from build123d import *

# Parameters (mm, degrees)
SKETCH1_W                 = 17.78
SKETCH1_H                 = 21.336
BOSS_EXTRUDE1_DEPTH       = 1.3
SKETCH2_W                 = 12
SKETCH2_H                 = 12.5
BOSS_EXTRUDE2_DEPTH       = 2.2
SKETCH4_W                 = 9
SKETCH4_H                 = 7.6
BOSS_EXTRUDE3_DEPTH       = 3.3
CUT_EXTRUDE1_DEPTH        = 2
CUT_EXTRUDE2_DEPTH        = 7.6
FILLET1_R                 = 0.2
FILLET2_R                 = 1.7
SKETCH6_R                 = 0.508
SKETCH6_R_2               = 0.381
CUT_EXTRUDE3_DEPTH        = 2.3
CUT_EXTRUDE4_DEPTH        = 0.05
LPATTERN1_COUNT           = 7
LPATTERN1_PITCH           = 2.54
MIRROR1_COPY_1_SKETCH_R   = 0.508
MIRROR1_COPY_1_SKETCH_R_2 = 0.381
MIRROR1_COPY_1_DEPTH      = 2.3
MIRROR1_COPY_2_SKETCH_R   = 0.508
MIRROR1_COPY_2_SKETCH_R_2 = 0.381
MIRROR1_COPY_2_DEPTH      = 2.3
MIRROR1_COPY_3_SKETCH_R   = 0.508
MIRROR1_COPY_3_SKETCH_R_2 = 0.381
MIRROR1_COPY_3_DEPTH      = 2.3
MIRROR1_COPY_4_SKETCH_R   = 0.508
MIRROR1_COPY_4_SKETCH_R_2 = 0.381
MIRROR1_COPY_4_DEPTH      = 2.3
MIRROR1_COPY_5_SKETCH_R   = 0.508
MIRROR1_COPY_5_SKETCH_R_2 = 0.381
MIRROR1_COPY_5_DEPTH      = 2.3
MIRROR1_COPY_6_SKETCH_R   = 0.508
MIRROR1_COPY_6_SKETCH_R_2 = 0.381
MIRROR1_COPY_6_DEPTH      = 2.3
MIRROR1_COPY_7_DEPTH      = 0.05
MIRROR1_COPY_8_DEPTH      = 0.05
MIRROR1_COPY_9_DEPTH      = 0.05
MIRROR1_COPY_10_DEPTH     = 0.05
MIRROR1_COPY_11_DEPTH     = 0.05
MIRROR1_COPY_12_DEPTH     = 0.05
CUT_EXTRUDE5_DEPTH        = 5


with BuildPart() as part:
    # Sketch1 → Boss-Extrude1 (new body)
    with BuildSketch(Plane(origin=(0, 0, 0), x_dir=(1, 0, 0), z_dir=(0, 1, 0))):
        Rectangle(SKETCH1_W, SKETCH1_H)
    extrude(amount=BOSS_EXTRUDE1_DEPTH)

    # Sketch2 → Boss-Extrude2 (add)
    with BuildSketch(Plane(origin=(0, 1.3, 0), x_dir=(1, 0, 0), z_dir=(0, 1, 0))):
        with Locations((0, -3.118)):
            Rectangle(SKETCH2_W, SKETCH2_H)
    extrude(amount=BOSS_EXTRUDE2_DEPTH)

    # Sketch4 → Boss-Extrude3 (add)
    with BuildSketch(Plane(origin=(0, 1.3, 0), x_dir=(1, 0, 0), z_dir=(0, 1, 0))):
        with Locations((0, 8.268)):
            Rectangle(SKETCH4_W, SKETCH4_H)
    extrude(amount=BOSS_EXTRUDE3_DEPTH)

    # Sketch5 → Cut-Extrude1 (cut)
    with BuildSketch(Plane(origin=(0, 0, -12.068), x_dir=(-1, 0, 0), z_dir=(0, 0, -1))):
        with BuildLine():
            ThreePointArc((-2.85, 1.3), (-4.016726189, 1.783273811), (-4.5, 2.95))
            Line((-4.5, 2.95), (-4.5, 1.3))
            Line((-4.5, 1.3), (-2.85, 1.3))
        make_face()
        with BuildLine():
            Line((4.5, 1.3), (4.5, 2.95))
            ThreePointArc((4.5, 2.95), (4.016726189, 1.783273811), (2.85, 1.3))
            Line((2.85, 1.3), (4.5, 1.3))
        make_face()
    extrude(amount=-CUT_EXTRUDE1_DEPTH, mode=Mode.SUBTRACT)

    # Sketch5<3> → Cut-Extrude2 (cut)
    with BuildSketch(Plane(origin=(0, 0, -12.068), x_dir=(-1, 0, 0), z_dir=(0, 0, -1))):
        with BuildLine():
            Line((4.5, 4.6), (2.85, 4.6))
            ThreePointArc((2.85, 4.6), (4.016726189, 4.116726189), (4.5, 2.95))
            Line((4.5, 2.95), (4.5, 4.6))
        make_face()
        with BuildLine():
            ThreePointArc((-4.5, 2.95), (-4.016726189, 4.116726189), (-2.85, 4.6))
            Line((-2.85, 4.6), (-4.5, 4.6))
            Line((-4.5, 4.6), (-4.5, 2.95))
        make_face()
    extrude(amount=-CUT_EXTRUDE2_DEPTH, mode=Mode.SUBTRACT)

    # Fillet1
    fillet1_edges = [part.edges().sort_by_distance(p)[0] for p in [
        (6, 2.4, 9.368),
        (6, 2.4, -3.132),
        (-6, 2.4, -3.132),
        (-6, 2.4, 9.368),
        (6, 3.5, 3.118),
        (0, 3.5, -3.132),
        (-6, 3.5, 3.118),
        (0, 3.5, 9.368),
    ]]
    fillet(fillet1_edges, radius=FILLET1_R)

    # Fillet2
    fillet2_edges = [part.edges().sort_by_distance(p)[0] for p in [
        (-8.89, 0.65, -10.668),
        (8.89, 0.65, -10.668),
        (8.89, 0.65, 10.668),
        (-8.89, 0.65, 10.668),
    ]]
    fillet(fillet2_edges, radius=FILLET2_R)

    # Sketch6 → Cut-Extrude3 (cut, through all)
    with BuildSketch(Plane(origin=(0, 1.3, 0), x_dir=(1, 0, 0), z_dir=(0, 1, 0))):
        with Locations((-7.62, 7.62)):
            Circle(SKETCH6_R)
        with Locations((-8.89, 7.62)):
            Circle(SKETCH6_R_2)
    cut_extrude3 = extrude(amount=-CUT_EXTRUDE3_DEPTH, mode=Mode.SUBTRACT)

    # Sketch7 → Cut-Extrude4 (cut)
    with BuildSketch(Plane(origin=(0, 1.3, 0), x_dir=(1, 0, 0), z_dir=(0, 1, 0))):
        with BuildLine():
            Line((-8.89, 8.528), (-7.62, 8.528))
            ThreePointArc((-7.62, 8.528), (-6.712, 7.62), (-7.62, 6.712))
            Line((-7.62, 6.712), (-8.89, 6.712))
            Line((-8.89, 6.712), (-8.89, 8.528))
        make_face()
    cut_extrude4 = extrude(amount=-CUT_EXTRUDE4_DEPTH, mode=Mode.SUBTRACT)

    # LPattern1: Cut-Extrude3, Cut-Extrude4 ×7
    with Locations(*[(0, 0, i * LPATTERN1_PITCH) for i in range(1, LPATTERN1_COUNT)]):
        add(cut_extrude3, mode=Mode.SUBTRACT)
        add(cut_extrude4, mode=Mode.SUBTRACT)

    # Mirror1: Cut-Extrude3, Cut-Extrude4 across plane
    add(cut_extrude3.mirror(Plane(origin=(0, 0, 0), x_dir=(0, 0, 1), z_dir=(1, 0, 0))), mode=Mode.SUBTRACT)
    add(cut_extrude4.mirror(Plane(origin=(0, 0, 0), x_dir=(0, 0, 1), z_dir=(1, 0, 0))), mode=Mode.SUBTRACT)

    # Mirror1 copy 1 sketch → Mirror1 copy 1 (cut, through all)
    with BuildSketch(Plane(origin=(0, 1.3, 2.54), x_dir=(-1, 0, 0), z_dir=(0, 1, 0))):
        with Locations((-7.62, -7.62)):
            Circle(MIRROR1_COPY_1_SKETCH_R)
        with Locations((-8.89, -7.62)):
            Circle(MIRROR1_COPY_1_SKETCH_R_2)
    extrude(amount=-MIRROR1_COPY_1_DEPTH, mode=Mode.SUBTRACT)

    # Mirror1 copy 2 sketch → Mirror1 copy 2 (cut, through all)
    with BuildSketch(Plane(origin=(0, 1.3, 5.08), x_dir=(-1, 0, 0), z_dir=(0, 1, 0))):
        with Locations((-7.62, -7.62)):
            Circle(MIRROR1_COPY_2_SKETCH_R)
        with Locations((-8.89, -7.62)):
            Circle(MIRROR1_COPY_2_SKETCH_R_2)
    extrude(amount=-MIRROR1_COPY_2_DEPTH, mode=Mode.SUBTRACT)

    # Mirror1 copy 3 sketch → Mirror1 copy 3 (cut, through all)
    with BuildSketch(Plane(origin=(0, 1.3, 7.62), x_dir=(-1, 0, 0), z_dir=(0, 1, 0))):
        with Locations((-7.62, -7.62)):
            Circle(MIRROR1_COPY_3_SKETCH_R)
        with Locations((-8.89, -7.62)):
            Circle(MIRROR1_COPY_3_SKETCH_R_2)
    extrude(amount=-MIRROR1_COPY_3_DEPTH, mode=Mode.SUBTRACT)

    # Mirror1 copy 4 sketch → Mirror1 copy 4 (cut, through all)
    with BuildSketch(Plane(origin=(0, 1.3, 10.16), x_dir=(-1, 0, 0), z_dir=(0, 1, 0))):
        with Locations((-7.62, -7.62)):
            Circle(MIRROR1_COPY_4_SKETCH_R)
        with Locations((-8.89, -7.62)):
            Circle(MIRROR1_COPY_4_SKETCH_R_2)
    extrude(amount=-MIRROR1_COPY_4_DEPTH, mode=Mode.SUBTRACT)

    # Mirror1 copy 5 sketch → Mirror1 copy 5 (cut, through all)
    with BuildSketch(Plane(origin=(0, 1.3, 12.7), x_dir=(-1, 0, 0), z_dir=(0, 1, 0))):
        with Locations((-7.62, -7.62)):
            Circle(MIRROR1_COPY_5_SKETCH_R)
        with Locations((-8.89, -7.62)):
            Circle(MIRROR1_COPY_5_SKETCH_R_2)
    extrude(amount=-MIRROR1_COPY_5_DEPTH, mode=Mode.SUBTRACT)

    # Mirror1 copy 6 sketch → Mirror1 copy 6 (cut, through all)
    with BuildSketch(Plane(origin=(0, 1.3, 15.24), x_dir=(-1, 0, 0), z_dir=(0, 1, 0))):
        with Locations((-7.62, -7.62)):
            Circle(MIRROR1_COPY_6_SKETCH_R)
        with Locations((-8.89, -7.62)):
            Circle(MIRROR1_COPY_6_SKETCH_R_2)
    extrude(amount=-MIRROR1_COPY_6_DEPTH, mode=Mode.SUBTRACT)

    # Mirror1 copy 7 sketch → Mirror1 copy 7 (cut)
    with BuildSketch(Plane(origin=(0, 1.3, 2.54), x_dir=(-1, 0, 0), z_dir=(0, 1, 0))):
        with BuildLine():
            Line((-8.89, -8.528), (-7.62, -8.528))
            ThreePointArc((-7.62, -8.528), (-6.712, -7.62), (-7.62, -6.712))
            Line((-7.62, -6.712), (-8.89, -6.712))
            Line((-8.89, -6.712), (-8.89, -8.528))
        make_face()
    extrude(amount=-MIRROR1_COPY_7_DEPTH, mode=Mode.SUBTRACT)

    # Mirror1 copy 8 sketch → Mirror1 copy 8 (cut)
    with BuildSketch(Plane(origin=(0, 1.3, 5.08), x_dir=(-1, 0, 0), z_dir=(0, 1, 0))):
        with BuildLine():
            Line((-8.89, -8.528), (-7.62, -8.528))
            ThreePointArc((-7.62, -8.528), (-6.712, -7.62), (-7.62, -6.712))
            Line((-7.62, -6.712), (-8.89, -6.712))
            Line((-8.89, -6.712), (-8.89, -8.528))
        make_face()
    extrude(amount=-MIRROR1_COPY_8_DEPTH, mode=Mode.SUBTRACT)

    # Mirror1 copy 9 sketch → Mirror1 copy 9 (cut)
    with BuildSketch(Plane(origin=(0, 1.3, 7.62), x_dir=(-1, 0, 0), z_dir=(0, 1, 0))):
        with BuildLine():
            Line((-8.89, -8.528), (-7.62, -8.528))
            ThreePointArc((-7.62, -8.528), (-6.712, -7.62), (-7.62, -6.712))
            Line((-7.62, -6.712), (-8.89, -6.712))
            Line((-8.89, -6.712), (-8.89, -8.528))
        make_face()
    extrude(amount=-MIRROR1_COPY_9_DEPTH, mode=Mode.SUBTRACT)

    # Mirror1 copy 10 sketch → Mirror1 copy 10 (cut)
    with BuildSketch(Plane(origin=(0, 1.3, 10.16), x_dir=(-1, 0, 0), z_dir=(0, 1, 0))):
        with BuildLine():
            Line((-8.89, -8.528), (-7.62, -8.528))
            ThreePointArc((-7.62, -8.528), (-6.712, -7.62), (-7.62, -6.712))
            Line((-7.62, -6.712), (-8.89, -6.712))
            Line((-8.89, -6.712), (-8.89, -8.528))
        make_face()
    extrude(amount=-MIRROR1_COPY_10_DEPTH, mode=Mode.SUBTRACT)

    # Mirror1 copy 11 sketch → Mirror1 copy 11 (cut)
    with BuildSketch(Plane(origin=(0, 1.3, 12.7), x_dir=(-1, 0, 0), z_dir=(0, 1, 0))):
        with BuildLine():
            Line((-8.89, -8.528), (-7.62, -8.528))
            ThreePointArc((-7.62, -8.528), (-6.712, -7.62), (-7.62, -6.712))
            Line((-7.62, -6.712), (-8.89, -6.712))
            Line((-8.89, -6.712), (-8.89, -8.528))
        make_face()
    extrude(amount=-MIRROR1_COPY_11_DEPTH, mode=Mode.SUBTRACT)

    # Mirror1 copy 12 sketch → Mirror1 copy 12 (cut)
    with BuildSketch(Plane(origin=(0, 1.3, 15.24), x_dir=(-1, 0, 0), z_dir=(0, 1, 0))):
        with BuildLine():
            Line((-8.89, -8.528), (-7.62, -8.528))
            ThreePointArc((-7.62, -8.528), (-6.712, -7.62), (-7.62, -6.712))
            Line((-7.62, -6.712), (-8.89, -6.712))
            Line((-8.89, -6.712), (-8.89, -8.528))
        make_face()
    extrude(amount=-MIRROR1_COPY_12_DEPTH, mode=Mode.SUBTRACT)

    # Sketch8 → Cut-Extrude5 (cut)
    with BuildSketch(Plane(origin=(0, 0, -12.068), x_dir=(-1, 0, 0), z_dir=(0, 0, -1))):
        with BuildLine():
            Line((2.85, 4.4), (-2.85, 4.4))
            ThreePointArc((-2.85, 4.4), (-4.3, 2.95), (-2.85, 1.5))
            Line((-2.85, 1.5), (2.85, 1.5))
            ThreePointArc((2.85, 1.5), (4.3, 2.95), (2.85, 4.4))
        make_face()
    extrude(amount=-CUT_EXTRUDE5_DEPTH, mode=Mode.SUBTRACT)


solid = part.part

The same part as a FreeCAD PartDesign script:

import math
import FreeCAD as App
import Part
import Sketcher
Q = App.Units.Quantity


def edges_at(feature, points):
    """Names of the edges that pass closest to the given points."""
    edges = feature.Shape.Edges
    near = lambda p: min(range(len(edges)), key=lambda i: edges[i].distToShape(Part.Vertex(*p))[0])
    return sorted({f"Edge{near(p) + 1}" for p in points})


def add_polygon(sketch, points):
    """Adds a closed chain of lines whose ends are joined by coincident constraints."""
    first, n = sketch.GeometryCount, len(points)
    for a, b in zip(points, points[1:] + points[:1]):
        sketch.addGeometry(Part.LineSegment(App.Vector(*a, 0), App.Vector(*b, 0)), False)
    for i in range(n):
        sketch.addConstraint(Sketcher.Constraint("Coincident", first + i, 2, first + (i + 1) % n, 1))

doc = App.newDocument("Part")
body = doc.addObject("PartDesign::Body", "Body")

# Sketch on XZ plane
sketch1 = body.newObject("Sketcher::SketchObject", "Sketch")
sketch1.AttachmentSupport = (doc.getObject("XZ_Plane"), [""])
sketch1.MapMode = "FlatFace"
add_polygon(sketch1, [(-8.89, -10.668), (-8.89, 10.668), (8.89, 10.668), (8.89, -10.668)])  # lines 0-3
sketch1.addConstraint([
    Sketcher.Constraint("Vertical", 0),
    Sketcher.Constraint("Horizontal", 1),
    Sketcher.Constraint("Vertical", 2),
    Sketcher.Constraint("Horizontal", 3),
    Sketcher.Constraint("Symmetric", 0, 2, 2, 2, -1, 1),
    Sketcher.Constraint("DistanceX", 1, 1, 1, 2, Q("17.78 mm")),
    Sketcher.Constraint("DistanceY", 0, 1, 0, 2, Q("21.336 mm")),
])
pad1 = body.newObject("PartDesign::Pad", "Pad")
pad1.Profile = sketch1
pad1.Length = 1.3
pad1.Reversed = True

# Sketch on XZ plane
sketch2 = body.newObject("Sketcher::SketchObject", "Sketch001")
sketch2.AttachmentSupport = (doc.getObject("XZ_Plane"), [""])
sketch2.MapMode = "FlatFace"
sketch2.AttachmentOffset = App.Placement(App.Vector(0, 0, -1.3), App.Rotation())
add_polygon(sketch2, [(-6, -3.132), (-6, 9.368), (6, 9.368), (6, -3.132)])  # lines 0-3
sketch2.addConstraint([
    Sketcher.Constraint("Vertical", 0),
    Sketcher.Constraint("Horizontal", 1),
    Sketcher.Constraint("Vertical", 2),
    Sketcher.Constraint("Horizontal", 3),
    Sketcher.Constraint("DistanceX", 1, 1, 1, 2, Q("12 mm")),
    Sketcher.Constraint("DistanceY", 0, 1, 0, 2, Q("12.5 mm")),
    Sketcher.Constraint("DistanceX", 0, 2, -1, 1, Q("6 mm")),
    Sketcher.Constraint("DistanceY", -1, 1, 0, 2, Q("9.368 mm")),
])
pad2 = body.newObject("PartDesign::Pad", "Pad001")
pad2.Profile = sketch2
pad2.Length = 2.2
pad2.Reversed = True

# Sketch on XZ plane
sketch3 = body.newObject("Sketcher::SketchObject", "Sketch002")
sketch3.AttachmentSupport = (doc.getObject("XZ_Plane"), [""])
sketch3.MapMode = "FlatFace"
sketch3.AttachmentOffset = App.Placement(App.Vector(0, 0, -1.3), App.Rotation())
add_polygon(sketch3, [(-4.5, -12.068), (-4.5, -4.468), (4.5, -4.468), (4.5, -12.068)])  # lines 0-3
sketch3.addConstraint([
    Sketcher.Constraint("Vertical", 0),
    Sketcher.Constraint("Horizontal", 1),
    Sketcher.Constraint("Vertical", 2),
    Sketcher.Constraint("Horizontal", 3),
    Sketcher.Constraint("DistanceX", 1, 1, 1, 2, Q("9 mm")),
    Sketcher.Constraint("DistanceY", 0, 1, 0, 2, Q("7.6 mm")),
    Sketcher.Constraint("DistanceX", 0, 2, -1, 1, Q("4.5 mm")),
    Sketcher.Constraint("DistanceY", 0, 2, -1, 1, Q("4.468 mm")),
])
pad3 = body.newObject("PartDesign::Pad", "Pad002")
pad3.Profile = sketch3
pad3.Length = 3.3
pad3.Reversed = True

# Sketch on XY plane
sketch4 = body.newObject("Sketcher::SketchObject", "Sketch003")
sketch4.AttachmentSupport = (doc.getObject("XY_Plane"), [""])
sketch4.MapMode = "FlatFace"
sketch4.AttachmentOffset = App.Placement(App.Vector(0, 0, -12.068), App.Rotation())
sketch4.addGeometry([
    Part.ArcOfCircle(Part.Circle(App.Vector(2.85, 2.95, 0), App.Vector(0, 0, 1), 1.65), math.radians(-90), math.radians(0)),  # 0
    Part.LineSegment(App.Vector(4.5, 2.95, 0), App.Vector(4.5, 1.3, 0)),  # 1
    Part.LineSegment(App.Vector(4.5, 1.3, 0), App.Vector(2.85, 1.3, 0)),  # 2
    Part.LineSegment(App.Vector(-4.5, 1.3, 0), App.Vector(-4.5, 2.95, 0)),  # 3
    Part.ArcOfCircle(Part.Circle(App.Vector(-2.85, 2.95, 0), App.Vector(0, 0, 1), 1.65), math.radians(180), math.radians(270)),  # 4
    Part.LineSegment(App.Vector(-2.85, 1.3, 0), App.Vector(-4.5, 1.3, 0)),  # 5
], False)
sketch4.addConstraint([
    Sketcher.Constraint("Tangent", 0, 2, 1, 1),
    Sketcher.Constraint("Coincident", 1, 2, 2, 1),
    Sketcher.Constraint("Tangent", 2, 2, 0, 1),
    Sketcher.Constraint("Tangent", 3, 2, 4, 1),
    Sketcher.Constraint("Tangent", 4, 2, 5, 1),
    Sketcher.Constraint("Coincident", 5, 2, 3, 1),
    Sketcher.Constraint("Vertical", 1),
    Sketcher.Constraint("Horizontal", 2),
    Sketcher.Constraint("Vertical", 3),
    Sketcher.Constraint("Horizontal", 5),
    Sketcher.Constraint("Equal", 0, 4),
    Sketcher.Constraint("Symmetric", 0, 3, 4, 3, -2),
    Sketcher.Constraint("Radius", 0, Q("1.65 mm")),
    Sketcher.Constraint("DistanceX", 3, 2, 0, 2, Q("9 mm")),
    Sketcher.Constraint("DistanceY", -1, 1, 1, 2, Q("1.3 mm")),
])
pocket1 = body.newObject("PartDesign::Pocket", "Pocket")
pocket1.Profile = sketch4
pocket1.Length = 2
pocket1.Reversed = True

# Sketch on XY plane
sketch5 = body.newObject("Sketcher::SketchObject", "Sketch004")
sketch5.AttachmentSupport = (doc.getObject("XY_Plane"), [""])
sketch5.MapMode = "FlatFace"
sketch5.AttachmentOffset = App.Placement(App.Vector(0, 0, -12.068), App.Rotation())
sketch5.addGeometry([
    Part.LineSegment(App.Vector(-4.5, 4.6, 0), App.Vector(-2.85, 4.6, 0)),  # 0
    Part.ArcOfCircle(Part.Circle(App.Vector(-2.85, 2.95, 0), App.Vector(0, 0, 1), 1.65), math.radians(90), math.radians(180)),  # 1
    Part.LineSegment(App.Vector(-4.5, 2.95, 0), App.Vector(-4.5, 4.6, 0)),  # 2
    Part.ArcOfCircle(Part.Circle(App.Vector(2.85, 2.95, 0), App.Vector(0, 0, 1), 1.65), math.radians(0), math.radians(90)),  # 3
    Part.LineSegment(App.Vector(2.85, 4.6, 0), App.Vector(4.5, 4.6, 0)),  # 4
    Part.LineSegment(App.Vector(4.5, 4.6, 0), App.Vector(4.5, 2.95, 0)),  # 5
], False)
sketch5.addConstraint([
    Sketcher.Constraint("Tangent", 0, 2, 1, 1),
    Sketcher.Constraint("Tangent", 1, 2, 2, 1),
    Sketcher.Constraint("Coincident", 2, 2, 0, 1),
    Sketcher.Constraint("Tangent", 3, 2, 4, 1),
    Sketcher.Constraint("Coincident", 4, 2, 5, 1),
    Sketcher.Constraint("Tangent", 5, 2, 3, 1),
    Sketcher.Constraint("Horizontal", 0),
    Sketcher.Constraint("Vertical", 2),
    Sketcher.Constraint("Horizontal", 4),
    Sketcher.Constraint("Vertical", 5),
    Sketcher.Constraint("Equal", 1, 3),
    Sketcher.Constraint("Symmetric", 1, 3, 3, 3, -2),
    Sketcher.Constraint("Radius", 1, Q("1.65 mm")),
    Sketcher.Constraint("DistanceX", 2, 2, 4, 2, Q("9 mm")),
    Sketcher.Constraint("DistanceY", -1, 1, 0, 2, Q("4.6 mm")),
])
pocket2 = body.newObject("PartDesign::Pocket", "Pocket001")
pocket2.Profile = sketch5
pocket2.Length = 7.6
pocket2.Reversed = True
doc.recompute()

fillet = body.newObject("PartDesign::Fillet", "Fillet")
fillet.Base = (pocket2, edges_at(pocket2, [
    (6, 2.4, 9.368),
    (6, 2.4, -3.132),
    (-6, 2.4, -3.132),
    (-6, 2.4, 9.368),
    (6, 3.5, 3.118),
    (0, 3.5, -3.132),
    (-6, 3.5, 3.118),
    (0, 3.5, 9.368),
]))
fillet.Radius = 0.2
doc.recompute()

fillet2 = body.newObject("PartDesign::Fillet", "Fillet001")
fillet2.Base = (fillet, edges_at(fillet, [
    (-8.89, 0.65, -10.668),
    (8.89, 0.65, -10.668),
    (8.89, 0.65, 10.668),
    (-8.89, 0.65, 10.668),
]))
fillet2.Radius = 1.7

# Sketch on XZ plane
sketch6 = body.newObject("Sketcher::SketchObject", "Sketch005")
sketch6.AttachmentSupport = (doc.getObject("XZ_Plane"), [""])
sketch6.MapMode = "FlatFace"
sketch6.AttachmentOffset = App.Placement(App.Vector(0, 0, -1.3), App.Rotation())
sketch6.addGeometry([
    Part.Circle(App.Vector(-7.62, -7.62, 0), App.Vector(0, 0, 1), 0.508),
    Part.Circle(App.Vector(-8.89, -7.62, 0), App.Vector(0, 0, 1), 0.381),
], False)
sketch6.addConstraint([
    Sketcher.Constraint("Horizontal", 0, 3, 1, 3),
    Sketcher.Constraint("Diameter", 0, Q("1.016 mm")),
    Sketcher.Constraint("Diameter", 1, Q("0.762 mm")),
    Sketcher.Constraint("DistanceX", 0, 3, -1, 1, Q("7.62 mm")),
    Sketcher.Constraint("DistanceY", 0, 3, -1, 1, Q("7.62 mm")),
    Sketcher.Constraint("DistanceX", 1, 3, -1, 1, Q("8.89 mm")),
])
pocket3 = body.newObject("PartDesign::Pocket", "Pocket002")
pocket3.Profile = sketch6
pocket3.Type = "ThroughAll"
pocket3.Reversed = True

# Sketch on XZ plane
sketch7 = body.newObject("Sketcher::SketchObject", "Sketch006")
sketch7.AttachmentSupport = (doc.getObject("XZ_Plane"), [""])
sketch7.MapMode = "FlatFace"
sketch7.AttachmentOffset = App.Placement(App.Vector(0, 0, -1.3), App.Rotation())
sketch7.addGeometry([
    Part.LineSegment(App.Vector(-7.62, -8.528, 0), App.Vector(-8.89, -8.528, 0)),
    Part.LineSegment(App.Vector(-8.89, -8.528, 0), App.Vector(-8.89, -6.712, 0)),
    Part.LineSegment(App.Vector(-8.89, -6.712, 0), App.Vector(-7.62, -6.712, 0)),
    Part.ArcOfCircle(Part.Circle(App.Vector(-7.62, -7.62, 0), App.Vector(0, 0, 1), 0.908), math.radians(-90), math.radians(90)),
], False)
sketch7.addConstraint([
    Sketcher.Constraint("Coincident", 0, 2, 1, 1),
    Sketcher.Constraint("Coincident", 1, 2, 2, 1),
    Sketcher.Constraint("Tangent", 2, 2, 3, 2),
    Sketcher.Constraint("Tangent", 3, 1, 0, 1),
    Sketcher.Constraint("Horizontal", 0),
    Sketcher.Constraint("Vertical", 1),
    Sketcher.Constraint("Horizontal", 2),
    Sketcher.Constraint("Radius", 3, Q("0.908 mm")),
    Sketcher.Constraint("DistanceX", 0, 2, 0, 1, Q("1.27 mm")),
    Sketcher.Constraint("DistanceX", 3, 3, -1, 1, Q("7.62 mm")),
    Sketcher.Constraint("DistanceY", 3, 3, -1, 1, Q("7.62 mm")),
])
pocket4 = body.newObject("PartDesign::Pocket", "Pocket003")
pocket4.Profile = sketch7
pocket4.Length = 0.05
pocket4.Reversed = True
doc.recompute()

linearpattern = body.newObject("PartDesign::LinearPattern", "LinearPattern")
linearpattern.Originals = [pocket3, pocket4]
linearpattern.Direction = (doc.getObject("Z_Axis"), [""])
linearpattern.Mode = "offset"
linearpattern.Offset = 2.54
linearpattern.Occurrences = 7
body.Tip = linearpattern
doc.recompute()

mirrored = body.newObject("PartDesign::Mirrored", "Mirrored")
mirrored.Originals = [pocket3, pocket4]
mirrored.MirrorPlane = (doc.getObject("YZ_Plane"), [""])
body.Tip = mirrored

# Sketch on XZ plane
sketch8 = body.newObject("Sketcher::SketchObject", "Sketch007")
sketch8.AttachmentSupport = (doc.getObject("XZ_Plane"), [""])
sketch8.MapMode = "FlatFace"
sketch8.AttachmentOffset = App.Placement(App.Vector(0, 0, -1.3), App.Rotation())
sketch8.addGeometry([
    Part.Circle(App.Vector(7.62, -5.08, 0), App.Vector(0, 0, 1), 0.508),
    Part.Circle(App.Vector(8.89, -5.08, 0), App.Vector(0, 0, 1), 0.381),
], False)
sketch8.addConstraint([
    Sketcher.Constraint("Horizontal", 0, 3, 1, 3),
    Sketcher.Constraint("Diameter", 0, Q("1.016 mm")),
    Sketcher.Constraint("Diameter", 1, Q("0.762 mm")),
    Sketcher.Constraint("DistanceX", -1, 1, 0, 3, Q("7.62 mm")),
    Sketcher.Constraint("DistanceY", 0, 3, -1, 1, Q("5.08 mm")),
    Sketcher.Constraint("DistanceX", -1, 1, 1, 3, Q("8.89 mm")),
])
pocket5 = body.newObject("PartDesign::Pocket", "Pocket004")
pocket5.Profile = sketch8
pocket5.Type = "ThroughAll"
pocket5.Reversed = True

# Sketch on XZ plane
sketch9 = body.newObject("Sketcher::SketchObject", "Sketch008")
sketch9.AttachmentSupport = (doc.getObject("XZ_Plane"), [""])
sketch9.MapMode = "FlatFace"
sketch9.AttachmentOffset = App.Placement(App.Vector(0, 0, -1.3), App.Rotation())
sketch9.addGeometry([
    Part.Circle(App.Vector(7.62, -2.54, 0), App.Vector(0, 0, 1), 0.508),
    Part.Circle(App.Vector(8.89, -2.54, 0), App.Vector(0, 0, 1), 0.381),
], False)
sketch9.addConstraint([
    Sketcher.Constraint("Horizontal", 0, 3, 1, 3),
    Sketcher.Constraint("Diameter", 0, Q("1.016 mm")),
    Sketcher.Constraint("Diameter", 1, Q("0.762 mm")),
    Sketcher.Constraint("DistanceX", -1, 1, 0, 3, Q("7.62 mm")),
    Sketcher.Constraint("DistanceY", 0, 3, -1, 1, Q("2.54 mm")),
    Sketcher.Constraint("DistanceX", -1, 1, 1, 3, Q("8.89 mm")),
])
pocket6 = body.newObject("PartDesign::Pocket", "Pocket005")
pocket6.Profile = sketch9
pocket6.Type = "ThroughAll"
pocket6.Reversed = True

# Sketch on XZ plane
sketch10 = body.newObject("Sketcher::SketchObject", "Sketch009")
sketch10.AttachmentSupport = (doc.getObject("XZ_Plane"), [""])
sketch10.MapMode = "FlatFace"
sketch10.AttachmentOffset = App.Placement(App.Vector(0, 0, -1.3), App.Rotation())
sketch10.addGeometry([
    Part.Circle(App.Vector(7.62, 0, 0), App.Vector(0, 0, 1), 0.508),
    Part.Circle(App.Vector(8.89, 0, 0), App.Vector(0, 0, 1), 0.381),
], False)
sketch10.addConstraint([
    Sketcher.Constraint("PointOnObject", 0, 3, -1),
    Sketcher.Constraint("PointOnObject", 1, 3, -1),
    Sketcher.Constraint("Diameter", 0, Q("1.016 mm")),
    Sketcher.Constraint("Diameter", 1, Q("0.762 mm")),
    Sketcher.Constraint("DistanceX", -1, 1, 0, 3, Q("7.62 mm")),
    Sketcher.Constraint("DistanceX", -1, 1, 1, 3, Q("8.89 mm")),
])
pocket7 = body.newObject("PartDesign::Pocket", "Pocket006")
pocket7.Profile = sketch10
pocket7.Type = "ThroughAll"
pocket7.Reversed = True

# Sketch on XZ plane
sketch11 = body.newObject("Sketcher::SketchObject", "Sketch010")
sketch11.AttachmentSupport = (doc.getObject("XZ_Plane"), [""])
sketch11.MapMode = "FlatFace"
sketch11.AttachmentOffset = App.Placement(App.Vector(0, 0, -1.3), App.Rotation())
sketch11.addGeometry([
    Part.Circle(App.Vector(7.62, 2.54, 0), App.Vector(0, 0, 1), 0.508),
    Part.Circle(App.Vector(8.89, 2.54, 0), App.Vector(0, 0, 1), 0.381),
], False)
sketch11.addConstraint([
    Sketcher.Constraint("Horizontal", 0, 3, 1, 3),
    Sketcher.Constraint("Diameter", 0, Q("1.016 mm")),
    Sketcher.Constraint("Diameter", 1, Q("0.762 mm")),
    Sketcher.Constraint("DistanceX", -1, 1, 0, 3, Q("7.62 mm")),
    Sketcher.Constraint("DistanceY", -1, 1, 0, 3, Q("2.54 mm")),
    Sketcher.Constraint("DistanceX", -1, 1, 1, 3, Q("8.89 mm")),
])
pocket8 = body.newObject("PartDesign::Pocket", "Pocket007")
pocket8.Profile = sketch11
pocket8.Type = "ThroughAll"
pocket8.Reversed = True

# Sketch on XZ plane
sketch12 = body.newObject("Sketcher::SketchObject", "Sketch011")
sketch12.AttachmentSupport = (doc.getObject("XZ_Plane"), [""])
sketch12.MapMode = "FlatFace"
sketch12.AttachmentOffset = App.Placement(App.Vector(0, 0, -1.3), App.Rotation())
sketch12.addGeometry([
    Part.Circle(App.Vector(7.62, 5.08, 0), App.Vector(0, 0, 1), 0.508),
    Part.Circle(App.Vector(8.89, 5.08, 0), App.Vector(0, 0, 1), 0.381),
], False)
sketch12.addConstraint([
    Sketcher.Constraint("Horizontal", 0, 3, 1, 3),
    Sketcher.Constraint("Diameter", 0, Q("1.016 mm")),
    Sketcher.Constraint("Diameter", 1, Q("0.762 mm")),
    Sketcher.Constraint("DistanceX", -1, 1, 0, 3, Q("7.62 mm")),
    Sketcher.Constraint("DistanceY", -1, 1, 0, 3, Q("5.08 mm")),
    Sketcher.Constraint("DistanceX", -1, 1, 1, 3, Q("8.89 mm")),
])
pocket9 = body.newObject("PartDesign::Pocket", "Pocket008")
pocket9.Profile = sketch12
pocket9.Type = "ThroughAll"
pocket9.Reversed = True

# Sketch on XZ plane
sketch13 = body.newObject("Sketcher::SketchObject", "Sketch012")
sketch13.AttachmentSupport = (doc.getObject("XZ_Plane"), [""])
sketch13.MapMode = "FlatFace"
sketch13.AttachmentOffset = App.Placement(App.Vector(0, 0, -1.3), App.Rotation())
sketch13.addGeometry([
    Part.Circle(App.Vector(7.62, 7.62, 0), App.Vector(0, 0, 1), 0.508),
    Part.Circle(App.Vector(8.89, 7.62, 0), App.Vector(0, 0, 1), 0.381),
], False)
sketch13.addConstraint([
    Sketcher.Constraint("Horizontal", 0, 3, 1, 3),
    Sketcher.Constraint("Diameter", 0, Q("1.016 mm")),
    Sketcher.Constraint("Diameter", 1, Q("0.762 mm")),
    Sketcher.Constraint("DistanceX", -1, 1, 0, 3, Q("7.62 mm")),
    Sketcher.Constraint("DistanceY", -1, 1, 0, 3, Q("7.62 mm")),
    Sketcher.Constraint("DistanceX", -1, 1, 1, 3, Q("8.89 mm")),
])
pocket10 = body.newObject("PartDesign::Pocket", "Pocket009")
pocket10.Profile = sketch13
pocket10.Type = "ThroughAll"
pocket10.Reversed = True

# Sketch on XZ plane
sketch14 = body.newObject("Sketcher::SketchObject", "Sketch013")
sketch14.AttachmentSupport = (doc.getObject("XZ_Plane"), [""])
sketch14.MapMode = "FlatFace"
sketch14.AttachmentOffset = App.Placement(App.Vector(0, 0, -1.3), App.Rotation())
sketch14.addGeometry([
    Part.LineSegment(App.Vector(8.89, -5.988, 0), App.Vector(7.62, -5.988, 0)),
    Part.ArcOfCircle(Part.Circle(App.Vector(7.62, -5.08, 0), App.Vector(0, 0, 1), 0.908), math.radians(90), math.radians(270)),
    Part.LineSegment(App.Vector(7.62, -4.172, 0), App.Vector(8.89, -4.172, 0)),
    Part.LineSegment(App.Vector(8.89, -4.172, 0), App.Vector(8.89, -5.988, 0)),
], False)
sketch14.addConstraint([
    Sketcher.Constraint("Tangent", 0, 2, 1, 2),
    Sketcher.Constraint("Tangent", 1, 1, 2, 1),
    Sketcher.Constraint("Coincident", 2, 2, 3, 1),
    Sketcher.Constraint("Coincident", 3, 2, 0, 1),
    Sketcher.Constraint("Horizontal", 0),
    Sketcher.Constraint("Horizontal", 2),
    Sketcher.Constraint("Vertical", 3),
    Sketcher.Constraint("Radius", 1, Q("0.908 mm")),
    Sketcher.Constraint("DistanceX", 0, 2, 0, 1, Q("1.27 mm")),
    Sketcher.Constraint("DistanceX", -1, 1, 1, 3, Q("7.62 mm")),
    Sketcher.Constraint("DistanceY", 1, 3, -1, 1, Q("5.08 mm")),
])
pocket11 = body.newObject("PartDesign::Pocket", "Pocket010")
pocket11.Profile = sketch14
pocket11.Length = 0.05
pocket11.Reversed = True

# Sketch on XZ plane
sketch15 = body.newObject("Sketcher::SketchObject", "Sketch014")
sketch15.AttachmentSupport = (doc.getObject("XZ_Plane"), [""])
sketch15.MapMode = "FlatFace"
sketch15.AttachmentOffset = App.Placement(App.Vector(0, 0, -1.3), App.Rotation())
sketch15.addGeometry([
    Part.LineSegment(App.Vector(8.89, -3.448, 0), App.Vector(7.62, -3.448, 0)),
    Part.ArcOfCircle(Part.Circle(App.Vector(7.62, -2.54, 0), App.Vector(0, 0, 1), 0.908), math.radians(90), math.radians(270)),
    Part.LineSegment(App.Vector(7.62, -1.632, 0), App.Vector(8.89, -1.632, 0)),
    Part.LineSegment(App.Vector(8.89, -1.632, 0), App.Vector(8.89, -3.448, 0)),
], False)
sketch15.addConstraint([
    Sketcher.Constraint("Tangent", 0, 2, 1, 2),
    Sketcher.Constraint("Tangent", 1, 1, 2, 1),
    Sketcher.Constraint("Coincident", 2, 2, 3, 1),
    Sketcher.Constraint("Coincident", 3, 2, 0, 1),
    Sketcher.Constraint("Horizontal", 0),
    Sketcher.Constraint("Horizontal", 2),
    Sketcher.Constraint("Vertical", 3),
    Sketcher.Constraint("Radius", 1, Q("0.908 mm")),
    Sketcher.Constraint("DistanceX", 0, 2, 0, 1, Q("1.27 mm")),
    Sketcher.Constraint("DistanceX", -1, 1, 1, 3, Q("7.62 mm")),
    Sketcher.Constraint("DistanceY", 1, 3, -1, 1, Q("2.54 mm")),
])
pocket12 = body.newObject("PartDesign::Pocket", "Pocket011")
pocket12.Profile = sketch15
pocket12.Length = 0.05
pocket12.Reversed = True

# Sketch on XZ plane
sketch16 = body.newObject("Sketcher::SketchObject", "Sketch015")
sketch16.AttachmentSupport = (doc.getObject("XZ_Plane"), [""])
sketch16.MapMode = "FlatFace"
sketch16.AttachmentOffset = App.Placement(App.Vector(0, 0, -1.3), App.Rotation())
sketch16.addGeometry([
    Part.LineSegment(App.Vector(8.89, -0.908, 0), App.Vector(7.62, -0.908, 0)),
    Part.ArcOfCircle(Part.Circle(App.Vector(7.62, 0, 0), App.Vector(0, 0, 1), 0.908), math.radians(90), math.radians(270)),
    Part.LineSegment(App.Vector(7.62, 0.908, 0), App.Vector(8.89, 0.908, 0)),
    Part.LineSegment(App.Vector(8.89, 0.908, 0), App.Vector(8.89, -0.908, 0)),
], False)
sketch16.addConstraint([
    Sketcher.Constraint("Tangent", 0, 2, 1, 2),
    Sketcher.Constraint("Tangent", 1, 1, 2, 1),
    Sketcher.Constraint("Coincident", 2, 2, 3, 1),
    Sketcher.Constraint("Coincident", 3, 2, 0, 1),
    Sketcher.Constraint("Horizontal", 0),
    Sketcher.Constraint("Horizontal", 2),
    Sketcher.Constraint("Vertical", 3),
    Sketcher.Constraint("PointOnObject", 1, 3, -1),
    Sketcher.Constraint("Radius", 1, Q("0.908 mm")),
    Sketcher.Constraint("DistanceX", 0, 2, 0, 1, Q("1.27 mm")),
    Sketcher.Constraint("DistanceX", -1, 1, 1, 3, Q("7.62 mm")),
])
pocket13 = body.newObject("PartDesign::Pocket", "Pocket012")
pocket13.Profile = sketch16
pocket13.Length = 0.05
pocket13.Reversed = True

# Sketch on XZ plane
sketch17 = body.newObject("Sketcher::SketchObject", "Sketch016")
sketch17.AttachmentSupport = (doc.getObject("XZ_Plane"), [""])
sketch17.MapMode = "FlatFace"
sketch17.AttachmentOffset = App.Placement(App.Vector(0, 0, -1.3), App.Rotation())
sketch17.addGeometry([
    Part.LineSegment(App.Vector(8.89, 1.632, 0), App.Vector(7.62, 1.632, 0)),
    Part.ArcOfCircle(Part.Circle(App.Vector(7.62, 2.54, 0), App.Vector(0, 0, 1), 0.908), math.radians(90), math.radians(270)),
    Part.LineSegment(App.Vector(7.62, 3.448, 0), App.Vector(8.89, 3.448, 0)),
    Part.LineSegment(App.Vector(8.89, 3.448, 0), App.Vector(8.89, 1.632, 0)),
], False)
sketch17.addConstraint([
    Sketcher.Constraint("Tangent", 0, 2, 1, 2),
    Sketcher.Constraint("Tangent", 1, 1, 2, 1),
    Sketcher.Constraint("Coincident", 2, 2, 3, 1),
    Sketcher.Constraint("Coincident", 3, 2, 0, 1),
    Sketcher.Constraint("Horizontal", 0),
    Sketcher.Constraint("Horizontal", 2),
    Sketcher.Constraint("Vertical", 3),
    Sketcher.Constraint("Radius", 1, Q("0.908 mm")),
    Sketcher.Constraint("DistanceX", 0, 2, 0, 1, Q("1.27 mm")),
    Sketcher.Constraint("DistanceX", -1, 1, 1, 3, Q("7.62 mm")),
    Sketcher.Constraint("DistanceY", -1, 1, 1, 3, Q("2.54 mm")),
])
pocket14 = body.newObject("PartDesign::Pocket", "Pocket013")
pocket14.Profile = sketch17
pocket14.Length = 0.05
pocket14.Reversed = True

# Sketch on XZ plane
sketch18 = body.newObject("Sketcher::SketchObject", "Sketch017")
sketch18.AttachmentSupport = (doc.getObject("XZ_Plane"), [""])
sketch18.MapMode = "FlatFace"
sketch18.AttachmentOffset = App.Placement(App.Vector(0, 0, -1.3), App.Rotation())
sketch18.addGeometry([
    Part.LineSegment(App.Vector(8.89, 4.172, 0), App.Vector(7.62, 4.172, 0)),
    Part.ArcOfCircle(Part.Circle(App.Vector(7.62, 5.08, 0), App.Vector(0, 0, 1), 0.908), math.radians(90), math.radians(270)),
    Part.LineSegment(App.Vector(7.62, 5.988, 0), App.Vector(8.89, 5.988, 0)),
    Part.LineSegment(App.Vector(8.89, 5.988, 0), App.Vector(8.89, 4.172, 0)),
], False)
sketch18.addConstraint([
    Sketcher.Constraint("Tangent", 0, 2, 1, 2),
    Sketcher.Constraint("Tangent", 1, 1, 2, 1),
    Sketcher.Constraint("Coincident", 2, 2, 3, 1),
    Sketcher.Constraint("Coincident", 3, 2, 0, 1),
    Sketcher.Constraint("Horizontal", 0),
    Sketcher.Constraint("Horizontal", 2),
    Sketcher.Constraint("Vertical", 3),
    Sketcher.Constraint("Radius", 1, Q("0.908 mm")),
    Sketcher.Constraint("DistanceX", 0, 2, 0, 1, Q("1.27 mm")),
    Sketcher.Constraint("DistanceX", -1, 1, 1, 3, Q("7.62 mm")),
    Sketcher.Constraint("DistanceY", -1, 1, 1, 3, Q("5.08 mm")),
])
pocket15 = body.newObject("PartDesign::Pocket", "Pocket014")
pocket15.Profile = sketch18
pocket15.Length = 0.05
pocket15.Reversed = True

# Sketch on XZ plane
sketch19 = body.newObject("Sketcher::SketchObject", "Sketch018")
sketch19.AttachmentSupport = (doc.getObject("XZ_Plane"), [""])
sketch19.MapMode = "FlatFace"
sketch19.AttachmentOffset = App.Placement(App.Vector(0, 0, -1.3), App.Rotation())
sketch19.addGeometry([
    Part.LineSegment(App.Vector(8.89, 6.712, 0), App.Vector(7.62, 6.712, 0)),
    Part.ArcOfCircle(Part.Circle(App.Vector(7.62, 7.62, 0), App.Vector(0, 0, 1), 0.908), math.radians(90), math.radians(270)),
    Part.LineSegment(App.Vector(7.62, 8.528, 0), App.Vector(8.89, 8.528, 0)),
    Part.LineSegment(App.Vector(8.89, 8.528, 0), App.Vector(8.89, 6.712, 0)),
], False)
sketch19.addConstraint([
    Sketcher.Constraint("Tangent", 0, 2, 1, 2),
    Sketcher.Constraint("Tangent", 1, 1, 2, 1),
    Sketcher.Constraint("Coincident", 2, 2, 3, 1),
    Sketcher.Constraint("Coincident", 3, 2, 0, 1),
    Sketcher.Constraint("Horizontal", 0),
    Sketcher.Constraint("Horizontal", 2),
    Sketcher.Constraint("Vertical", 3),
    Sketcher.Constraint("Radius", 1, Q("0.908 mm")),
    Sketcher.Constraint("DistanceX", 0, 2, 0, 1, Q("1.27 mm")),
    Sketcher.Constraint("DistanceX", -1, 1, 1, 3, Q("7.62 mm")),
    Sketcher.Constraint("DistanceY", -1, 1, 1, 3, Q("7.62 mm")),
])
pocket16 = body.newObject("PartDesign::Pocket", "Pocket015")
pocket16.Profile = sketch19
pocket16.Length = 0.05
pocket16.Reversed = True

# Sketch on XY plane
sketch20 = body.newObject("Sketcher::SketchObject", "Sketch019")
sketch20.AttachmentSupport = (doc.getObject("XY_Plane"), [""])
sketch20.MapMode = "FlatFace"
sketch20.AttachmentOffset = App.Placement(App.Vector(0, 0, -12.068), App.Rotation())
sketch20.addGeometry([
    Part.LineSegment(App.Vector(-2.85, 4.4, 0), App.Vector(2.85, 4.4, 0)),
    Part.ArcOfCircle(Part.Circle(App.Vector(2.85, 2.95, 0), App.Vector(0, 0, 1), 1.45), math.radians(-90), math.radians(90)),
    Part.LineSegment(App.Vector(2.85, 1.5, 0), App.Vector(-2.85, 1.5, 0)),
    Part.ArcOfCircle(Part.Circle(App.Vector(-2.85, 2.95, 0), App.Vector(0, 0, 1), 1.45), math.radians(90), math.radians(270)),
], False)
sketch20.addConstraint([
    Sketcher.Constraint("Tangent", 0, 2, 1, 2),
    Sketcher.Constraint("Tangent", 1, 1, 2, 1),
    Sketcher.Constraint("Tangent", 2, 2, 3, 2),
    Sketcher.Constraint("Tangent", 3, 1, 0, 1),
    Sketcher.Constraint("Horizontal", 0),
    Sketcher.Constraint("Horizontal", 2),
    Sketcher.Constraint("Radius", 1, Q("1.45 mm")),
    Sketcher.Constraint("DistanceX", 0, 1, 0, 2, Q("5.7 mm")),
    Sketcher.Constraint("DistanceY", -1, 1, 0, 2, Q("4.4 mm")),
    Sketcher.Constraint("DistanceX", -1, 1, 1, 3, Q("2.85 mm")),
])
pocket17 = body.newObject("PartDesign::Pocket", "Pocket016")
pocket17.Profile = sketch20
pocket17.Length = 5
pocket17.Reversed = True

doc.recompute()
